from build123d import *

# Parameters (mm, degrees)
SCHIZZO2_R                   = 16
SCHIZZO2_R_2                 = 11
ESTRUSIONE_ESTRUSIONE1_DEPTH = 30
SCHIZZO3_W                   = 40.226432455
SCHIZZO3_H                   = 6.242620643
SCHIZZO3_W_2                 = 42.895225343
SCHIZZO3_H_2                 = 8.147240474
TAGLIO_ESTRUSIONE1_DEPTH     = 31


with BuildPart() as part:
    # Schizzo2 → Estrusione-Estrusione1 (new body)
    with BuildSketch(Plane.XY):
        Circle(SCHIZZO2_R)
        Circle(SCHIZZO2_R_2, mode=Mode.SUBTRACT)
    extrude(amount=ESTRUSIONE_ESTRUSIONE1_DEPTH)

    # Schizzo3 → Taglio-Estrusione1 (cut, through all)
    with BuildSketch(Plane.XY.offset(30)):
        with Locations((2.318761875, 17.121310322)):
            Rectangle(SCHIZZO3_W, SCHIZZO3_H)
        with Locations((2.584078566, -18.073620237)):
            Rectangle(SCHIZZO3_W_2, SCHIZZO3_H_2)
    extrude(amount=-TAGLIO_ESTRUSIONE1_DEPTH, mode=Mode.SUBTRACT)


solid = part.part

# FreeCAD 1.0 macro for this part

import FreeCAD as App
import Part
import Sketcher
from FreeCAD import Vector

doc = App.newDocument("Part")
body = doc.addObject("PartDesign::Body", "Body")

# Sketch on XY plane
sketch1 = body.newObject("Sketcher::SketchObject", "Sketch")
sketch1.AttachmentSupport = (doc.getObject("XY_Plane"), [""])
sketch1.MapMode = "FlatFace"
sketch1.addGeometry(Part.Circle(Vector(0, 0, 0), Vector(0, 0, 1), 16), False)
sketch1.addGeometry(Part.Circle(Vector(0, 0, 0), Vector(0, 0, 1), 11), False)
sketch1.addConstraint(Sketcher.Constraint("Coincident", 0, 3, -1, 1))
sketch1.addConstraint(Sketcher.Constraint("Coincident", 1, 3, -1, 1))
sketch1.addConstraint(Sketcher.Constraint("Diameter", 0, 32.0))
sketch1.addConstraint(Sketcher.Constraint("Diameter", 1, 22.0))
pad1 = body.newObject("PartDesign::Pad", "Pad")
pad1.Profile = sketch1
pad1.Length = 30

# Sketch on XY plane
sketch2 = body.newObject("Sketcher::SketchObject", "Sketch001")
sketch2.AttachmentSupport = (doc.getObject("XY_Plane"), [""])
sketch2.MapMode = "FlatFace"
sketch2.AttachmentOffset = App.Placement(Vector(0, 0, 30), App.Rotation())
sketch2.addGeometry(Part.LineSegment(Vector(-18, 20, 0), Vector(-18, 14, 0)), False)
sketch2.addGeometry(Part.LineSegment(Vector(-18, 14, 0), Vector(22, 14, 0)), False)
sketch2.addGeometry(Part.LineSegment(Vector(22, 14, 0), Vector(22, 20, 0)), False)
sketch2.addGeometry(Part.LineSegment(Vector(22, 20, 0), Vector(-18, 20, 0)), False)
sketch2.addGeometry(Part.LineSegment(Vector(-19, -14, 0), Vector(-19, -22, 0)), False)
sketch2.addGeometry(Part.LineSegment(Vector(-19, -22, 0), Vector(24, -22, 0)), False)
sketch2.addGeometry(Part.LineSegment(Vector(24, -22, 0), Vector(24, -14, 0)), False)
sketch2.addGeometry(Part.LineSegment(Vector(24, -14, 0), Vector(-19, -14, 0)), False)
sketch2.addConstraint(Sketcher.Constraint("Coincident", 0, 2, 1, 1))
sketch2.addConstraint(Sketcher.Constraint("Coincident", 1, 2, 2, 1))
sketch2.addConstraint(Sketcher.Constraint("Coincident", 2, 2, 3, 1))
sketch2.addConstraint(Sketcher.Constraint("Coincident", 3, 2, 0, 1))
sketch2.addConstraint(Sketcher.Constraint("Coincident", 4, 2, 5, 1))
sketch2.addConstraint(Sketcher.Constraint("Coincident", 5, 2, 6, 1))
sketch2.addConstraint(Sketcher.Constraint("Coincident", 6, 2, 7, 1))
sketch2.addConstraint(Sketcher.Constraint("Coincident", 7, 2, 4, 1))
sketch2.addConstraint(Sketcher.Constraint("Vertical", 0))
sketch2.addConstraint(Sketcher.Constraint("Horizontal", 1))
sketch2.addConstraint(Sketcher.Constraint("Vertical", 2))
sketch2.addConstraint(Sketcher.Constraint("Horizontal", 3))
sketch2.addConstraint(Sketcher.Constraint("Vertical", 4))
sketch2.addConstraint(Sketcher.Constraint("Horizontal", 5))
sketch2.addConstraint(Sketcher.Constraint("Vertical", 6))
sketch2.addConstraint(Sketcher.Constraint("Horizontal", 7))
sketch2.addConstraint(Sketcher.Constraint("DistanceY", -1, 1, 0, 2, 14.0))
sketch2.addConstraint(Sketcher.Constraint("DistanceY", 6, 2, -1, 1, 14.0))
sketch2.addConstraint(Sketcher.Constraint("DistanceY", 0, 2, 0, 1, 6.242621))
sketch2.addConstraint(Sketcher.Constraint("DistanceY", 4, 2, 4, 1, 8.14724))
sketch2.addConstraint(Sketcher.Constraint("DistanceX", 1, 1, 1, 2, 40.226432))
sketch2.addConstraint(Sketcher.Constraint("DistanceX", 5, 1, 5, 2, 42.895225))
sketch2.addConstraint(Sketcher.Constraint("DistanceX", -1, 1, 1, 2, 22.431978))
sketch2.addConstraint(Sketcher.Constraint("DistanceX", -1, 1, 5, 2, 24.031691))
pocket1 = body.newObject("PartDesign::Pocket", "Pocket")
pocket1.Profile = sketch2
pocket1.Type = "ThroughAll"

doc.recompute()
